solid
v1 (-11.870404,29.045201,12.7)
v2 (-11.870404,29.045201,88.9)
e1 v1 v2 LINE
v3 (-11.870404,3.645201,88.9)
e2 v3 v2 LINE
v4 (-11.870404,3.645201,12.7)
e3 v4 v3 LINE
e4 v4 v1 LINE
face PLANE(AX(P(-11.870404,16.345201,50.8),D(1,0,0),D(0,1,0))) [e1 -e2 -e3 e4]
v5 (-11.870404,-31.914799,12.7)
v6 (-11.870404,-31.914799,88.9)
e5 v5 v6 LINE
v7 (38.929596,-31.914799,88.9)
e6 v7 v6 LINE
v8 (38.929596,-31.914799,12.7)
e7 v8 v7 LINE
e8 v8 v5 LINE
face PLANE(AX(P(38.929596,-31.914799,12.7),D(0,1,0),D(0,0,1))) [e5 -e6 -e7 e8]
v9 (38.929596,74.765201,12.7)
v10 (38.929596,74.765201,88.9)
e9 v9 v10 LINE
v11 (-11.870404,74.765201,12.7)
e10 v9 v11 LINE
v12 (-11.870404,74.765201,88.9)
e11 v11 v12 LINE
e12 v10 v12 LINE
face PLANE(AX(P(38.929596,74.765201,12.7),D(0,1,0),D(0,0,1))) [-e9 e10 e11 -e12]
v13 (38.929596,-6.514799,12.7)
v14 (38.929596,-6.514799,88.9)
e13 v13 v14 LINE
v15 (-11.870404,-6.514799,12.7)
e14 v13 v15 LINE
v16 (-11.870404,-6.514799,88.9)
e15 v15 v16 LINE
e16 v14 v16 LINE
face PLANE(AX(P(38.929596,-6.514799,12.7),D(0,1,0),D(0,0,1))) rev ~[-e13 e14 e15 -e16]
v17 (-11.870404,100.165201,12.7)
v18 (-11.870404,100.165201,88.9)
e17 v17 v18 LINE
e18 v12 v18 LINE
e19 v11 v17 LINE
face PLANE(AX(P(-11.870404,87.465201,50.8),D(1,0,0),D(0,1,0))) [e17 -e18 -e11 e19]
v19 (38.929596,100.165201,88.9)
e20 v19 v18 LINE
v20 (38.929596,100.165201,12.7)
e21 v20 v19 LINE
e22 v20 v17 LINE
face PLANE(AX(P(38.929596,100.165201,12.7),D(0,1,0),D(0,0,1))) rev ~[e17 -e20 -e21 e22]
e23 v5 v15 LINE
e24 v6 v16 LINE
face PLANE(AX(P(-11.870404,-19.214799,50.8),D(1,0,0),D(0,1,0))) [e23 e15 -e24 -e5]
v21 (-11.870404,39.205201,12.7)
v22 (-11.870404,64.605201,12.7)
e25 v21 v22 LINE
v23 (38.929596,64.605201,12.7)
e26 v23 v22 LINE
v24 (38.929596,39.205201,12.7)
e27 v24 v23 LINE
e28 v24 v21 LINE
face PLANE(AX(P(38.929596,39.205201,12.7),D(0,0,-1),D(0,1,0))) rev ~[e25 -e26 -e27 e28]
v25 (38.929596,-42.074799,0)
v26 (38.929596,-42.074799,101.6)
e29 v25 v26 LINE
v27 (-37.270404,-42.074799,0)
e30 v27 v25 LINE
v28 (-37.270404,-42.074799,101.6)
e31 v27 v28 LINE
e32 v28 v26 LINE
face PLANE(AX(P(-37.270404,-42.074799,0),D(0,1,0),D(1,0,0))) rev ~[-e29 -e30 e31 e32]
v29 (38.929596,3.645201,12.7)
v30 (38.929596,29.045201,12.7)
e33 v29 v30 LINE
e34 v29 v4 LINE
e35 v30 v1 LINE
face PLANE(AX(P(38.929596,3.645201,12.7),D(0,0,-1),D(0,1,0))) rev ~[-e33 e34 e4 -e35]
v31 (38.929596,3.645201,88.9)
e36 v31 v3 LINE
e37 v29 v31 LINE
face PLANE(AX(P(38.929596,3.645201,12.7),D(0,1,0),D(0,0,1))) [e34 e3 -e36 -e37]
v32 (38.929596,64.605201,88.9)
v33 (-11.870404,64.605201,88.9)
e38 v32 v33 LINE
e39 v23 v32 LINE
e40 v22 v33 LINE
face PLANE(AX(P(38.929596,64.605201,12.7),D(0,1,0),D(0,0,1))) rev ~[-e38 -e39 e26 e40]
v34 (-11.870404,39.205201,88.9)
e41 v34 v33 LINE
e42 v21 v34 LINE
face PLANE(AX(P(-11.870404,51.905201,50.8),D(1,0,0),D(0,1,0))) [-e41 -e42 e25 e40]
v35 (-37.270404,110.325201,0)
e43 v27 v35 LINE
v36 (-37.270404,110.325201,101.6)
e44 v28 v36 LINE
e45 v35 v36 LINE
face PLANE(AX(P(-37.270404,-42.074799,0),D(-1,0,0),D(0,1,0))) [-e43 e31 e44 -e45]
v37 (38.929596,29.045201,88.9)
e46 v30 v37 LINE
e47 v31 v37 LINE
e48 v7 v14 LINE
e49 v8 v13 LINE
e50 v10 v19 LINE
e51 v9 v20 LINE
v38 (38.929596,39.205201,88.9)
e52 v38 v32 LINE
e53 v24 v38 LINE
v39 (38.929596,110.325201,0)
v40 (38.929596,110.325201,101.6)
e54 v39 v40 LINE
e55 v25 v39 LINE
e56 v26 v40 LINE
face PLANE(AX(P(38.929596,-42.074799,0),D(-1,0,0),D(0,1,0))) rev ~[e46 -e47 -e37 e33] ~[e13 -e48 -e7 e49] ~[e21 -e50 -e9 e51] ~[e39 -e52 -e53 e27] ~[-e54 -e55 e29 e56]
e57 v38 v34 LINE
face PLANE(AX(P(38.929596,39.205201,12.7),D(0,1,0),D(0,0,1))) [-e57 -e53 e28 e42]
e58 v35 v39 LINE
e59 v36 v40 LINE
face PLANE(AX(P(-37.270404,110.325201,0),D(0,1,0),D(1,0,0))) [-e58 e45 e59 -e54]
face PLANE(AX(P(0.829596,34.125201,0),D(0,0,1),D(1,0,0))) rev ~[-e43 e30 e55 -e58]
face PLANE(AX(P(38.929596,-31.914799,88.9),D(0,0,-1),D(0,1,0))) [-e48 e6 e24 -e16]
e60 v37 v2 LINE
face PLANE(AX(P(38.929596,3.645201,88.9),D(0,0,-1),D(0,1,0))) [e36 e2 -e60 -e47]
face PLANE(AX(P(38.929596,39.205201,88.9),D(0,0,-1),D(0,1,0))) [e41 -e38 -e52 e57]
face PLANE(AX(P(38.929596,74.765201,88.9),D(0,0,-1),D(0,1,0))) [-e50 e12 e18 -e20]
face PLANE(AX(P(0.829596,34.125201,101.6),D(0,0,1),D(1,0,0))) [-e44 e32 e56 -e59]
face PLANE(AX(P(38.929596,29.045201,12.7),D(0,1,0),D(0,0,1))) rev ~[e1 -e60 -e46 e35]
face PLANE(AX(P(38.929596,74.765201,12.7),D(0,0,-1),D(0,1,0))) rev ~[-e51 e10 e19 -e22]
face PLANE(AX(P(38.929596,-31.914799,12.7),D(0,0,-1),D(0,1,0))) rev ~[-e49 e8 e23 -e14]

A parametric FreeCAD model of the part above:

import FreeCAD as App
import Part
import Sketcher
Q = App.Units.Quantity

doc = App.newDocument("Part")
body = doc.addObject("PartDesign::Body", "Body")

sketch1 = body.newObject("Sketcher::SketchObject", "Sketch")
sketch1.AttachmentSupport = (doc.getObject("XY_Plane"), [""])
sketch1.MapMode = "FlatFace"
sketch1.addGeometry(Part.LineSegment(App.Vector(-37, 110, 0), App.Vector(-37, -42, 0)), False)
sketch1.addGeometry(Part.LineSegment(App.Vector(-37, -42, 0), App.Vector(39, -42, 0)), False)
sketch1.addGeometry(Part.LineSegment(App.Vector(39, -42, 0), App.Vector(39, 110, 0)), False)
sketch1.addGeometry(Part.LineSegment(App.Vector(39, 110, 0), App.Vector(-37, 110, 0)), False)
sketch1.addConstraint(Sketcher.Constraint("Coincident", 0, 2, 1, 1))
sketch1.addConstraint(Sketcher.Constraint("Coincident", 1, 2, 2, 1))
sketch1.addConstraint(Sketcher.Constraint("Coincident", 2, 2, 3, 1))
sketch1.addConstraint(Sketcher.Constraint("Coincident", 3, 2, 0, 1))
sketch1.addConstraint(Sketcher.Constraint("Vertical", 0))
sketch1.addConstraint(Sketcher.Constraint("Horizontal", 1))
sketch1.addConstraint(Sketcher.Constraint("Vertical", 2))
sketch1.addConstraint(Sketcher.Constraint("Horizontal", 3))
sketch1.addConstraint(Sketcher.Constraint("DistanceX", 1, 1, 1, 2, Q("3 in")))
sketch1.addConstraint(Sketcher.Constraint("DistanceY", 0, 2, 0, 1, Q("6 in")))
sketch1.addConstraint(Sketcher.Constraint("DistanceY", 0, 2, -1, 1, Q("42.074799 mm")))
sketch1.addConstraint(Sketcher.Constraint("DistanceX", 0, 2, -1, 1, Q("37.270404 mm")))
pad1 = body.newObject("PartDesign::Pad", "Pad")
pad1.Profile = sketch1
pad1.Length = Q("4 in")

sketch2 = body.newObject("Sketcher::SketchObject", "Sketch001")
sketch2.AttachmentSupport = (doc.getObject("YZ_Plane"), [""])
sketch2.MapMode = "FlatFace"
sketch2.AttachmentOffset = App.Placement(App.Vector(0, 0, 38.929596), App.Rotation())
sketch2.addGeometry(Part.LineSegment(App.Vector(75, 89, 0), App.Vector(75, 13, 0)), False)
sketch2.addGeometry(Part.LineSegment(App.Vector(75, 13, 0), App.Vector(100, 13, 0)), False)
sketch2.addGeometry(Part.LineSegment(App.Vector(100, 13, 0), App.Vector(100, 89, 0)), False)
sketch2.addGeometry(Part.LineSegment(App.Vector(100, 89, 0), App.Vector(75, 89, 0)), False)
sketch2.addGeometry(Part.LineSegment(App.Vector(39, 89, 0), App.Vector(39, 13, 0)), False)
sketch2.addGeometry(Part.LineSegment(App.Vector(39, 13, 0), App.Vector(65, 13, 0)), False)
sketch2.addGeometry(Part.LineSegment(App.Vector(65, 13, 0), App.Vector(65, 89, 0)), False)
sketch2.addGeometry(Part.LineSegment(App.Vector(65, 89, 0), App.Vector(39, 89, 0)), False)
sketch2.addGeometry(Part.LineSegment(App.Vector(4, 89, 0), App.Vector(4, 13, 0)), False)
sketch2.addGeometry(Part.LineSegment(App.Vector(4, 13, 0), App.Vector(29, 13, 0)), False)
sketch2.addGeometry(Part.LineSegment(App.Vector(29, 13, 0), App.Vector(29, 89, 0)), False)
sketch2.addGeometry(Part.LineSegment(App.Vector(29, 89, 0), App.Vector(4, 89, 0)), False)
sketch2.addGeometry(Part.LineSegment(App.Vector(-32, 89, 0), App.Vector(-32, 13, 0)), False)
sketch2.addGeometry(Part.LineSegment(App.Vector(-32, 13, 0), App.Vector(-7, 13, 0)), False)
sketch2.addGeometry(Part.LineSegment(App.Vector(-7, 13, 0), App.Vector(-7, 89, 0)), False)
sketch2.addGeometry(Part.LineSegment(App.Vector(-7, 89, 0), App.Vector(-32, 89, 0)), False)
sketch2.addConstraint(Sketcher.Constraint("Coincident", 0, 2, 1, 1))
sketch2.addConstraint(Sketcher.Constraint("Coincident", 1, 2, 2, 1))
sketch2.addConstraint(Sketcher.Constraint("Coincident", 2, 2, 3, 1))
sketch2.addConstraint(Sketcher.Constraint("Coincident", 3, 2, 0, 1))
sketch2.addConstraint(Sketcher.Constraint("Coincident", 4, 2, 5, 1))
sketch2.addConstraint(Sketcher.Constraint("Coincident", 5, 2, 6, 1))
sketch2.addConstraint(Sketcher.Constraint("Coincident", 6, 2, 7, 1))
sketch2.addConstraint(Sketcher.Constraint("Coincident", 7, 2, 4, 1))
sketch2.addConstraint(Sketcher.Constraint("Coincident", 8, 2, 9, 1))
sketch2.addConstraint(Sketcher.Constraint("Coincident", 9, 2, 10, 1))
sketch2.addConstraint(Sketcher.Constraint("Coincident", 10, 2, 11, 1))
sketch2.addConstraint(Sketcher.Constraint("Coincident", 11, 2, 8, 1))
sketch2.addConstraint(Sketcher.Constraint("Coincident", 12, 2, 13, 1))
sketch2.addConstraint(Sketcher.Constraint("Coincident", 13, 2, 14, 1))
sketch2.addConstraint(Sketcher.Constraint("Coincident", 14, 2, 15, 1))
sketch2.addConstraint(Sketcher.Constraint("Coincident", 15, 2, 12, 1))
sketch2.addConstraint(Sketcher.Constraint("Vertical", 0))
sketch2.addConstraint(Sketcher.Constraint("Horizontal", 1))
sketch2.addConstraint(Sketcher.Constraint("Vertical", 2))
sketch2.addConstraint(Sketcher.Constraint("Horizontal", 3))
sketch2.addConstraint(Sketcher.Constraint("Vertical", 4))
sketch2.addConstraint(Sketcher.Constraint("Horizontal", 5))
sketch2.addConstraint(Sketcher.Constraint("Vertical", 6))
sketch2.addConstraint(Sketcher.Constraint("Horizontal", 7))
sketch2.addConstraint(Sketcher.Constraint("Vertical", 8))
sketch2.addConstraint(Sketcher.Constraint("Horizontal", 9))
sketch2.addConstraint(Sketcher.Constraint("Vertical", 10))
sketch2.addConstraint(Sketcher.Constraint("Horizontal", 11))
sketch2.addConstraint(Sketcher.Constraint("Vertical", 12))
sketch2.addConstraint(Sketcher.Constraint("Horizontal", 13))
sketch2.addConstraint(Sketcher.Constraint("Vertical", 14))
sketch2.addConstraint(Sketcher.Constraint("Horizontal", 15))
sketch2.addConstraint(Sketcher.Constraint("Horizontal", 1, 2, 4, 2))
sketch2.addConstraint(Sketcher.Constraint("Horizontal", 3, 2, 6, 2))
sketch2.addConstraint(Sketcher.Constraint("Horizontal", 5, 2, 8, 2))
sketch2.addConstraint(Sketcher.Constraint("Horizontal", 7, 2, 10, 2))
sketch2.addConstraint(Sketcher.Constraint("Horizontal", 9, 2, 12, 2))
sketch2.addConstraint(Sketcher.Constraint("Horizontal", 11, 2, 14, 2))
sketch2.addConstraint(Sketcher.Constraint("Equal", 3, 5))
sketch2.addConstraint(Sketcher.Constraint("Equal", 7, 9))
sketch2.addConstraint(Sketcher.Constraint("Equal", 11, 13))
sketch2.addConstraint(Sketcher.Constraint("DistanceX", 1, 1, 1, 2, Q("1 in")))
sketch2.addConstraint(Sketcher.Constraint("DistanceY", 0, 2, 0, 1, Q("3 in")))
sketch2.addConstraint(Sketcher.Constraint("DistanceY", -1, 1, 0, 2, Q("0.5 in")))
sketch2.addConstraint(Sketcher.Constraint("DistanceX", 4, 2, 0, 2, Q("1.4 in")))
sketch2.addConstraint(Sketcher.Constraint("DistanceX", 8, 2, 4, 2, Q("1.4 in")))
sketch2.addConstraint(Sketcher.Constraint("DistanceX", 12, 2, 8, 2, Q("1.4 in")))
sketch2.addConstraint(Sketcher.Constraint("DistanceX", -1, 1, 0, 2, Q("74.765201 mm")))
pocket1 = body.newObject("PartDesign::Pocket", "Pocket")
pocket1.Profile = sketch2
pocket1.Length = Q("2 in")

doc.recompute()
